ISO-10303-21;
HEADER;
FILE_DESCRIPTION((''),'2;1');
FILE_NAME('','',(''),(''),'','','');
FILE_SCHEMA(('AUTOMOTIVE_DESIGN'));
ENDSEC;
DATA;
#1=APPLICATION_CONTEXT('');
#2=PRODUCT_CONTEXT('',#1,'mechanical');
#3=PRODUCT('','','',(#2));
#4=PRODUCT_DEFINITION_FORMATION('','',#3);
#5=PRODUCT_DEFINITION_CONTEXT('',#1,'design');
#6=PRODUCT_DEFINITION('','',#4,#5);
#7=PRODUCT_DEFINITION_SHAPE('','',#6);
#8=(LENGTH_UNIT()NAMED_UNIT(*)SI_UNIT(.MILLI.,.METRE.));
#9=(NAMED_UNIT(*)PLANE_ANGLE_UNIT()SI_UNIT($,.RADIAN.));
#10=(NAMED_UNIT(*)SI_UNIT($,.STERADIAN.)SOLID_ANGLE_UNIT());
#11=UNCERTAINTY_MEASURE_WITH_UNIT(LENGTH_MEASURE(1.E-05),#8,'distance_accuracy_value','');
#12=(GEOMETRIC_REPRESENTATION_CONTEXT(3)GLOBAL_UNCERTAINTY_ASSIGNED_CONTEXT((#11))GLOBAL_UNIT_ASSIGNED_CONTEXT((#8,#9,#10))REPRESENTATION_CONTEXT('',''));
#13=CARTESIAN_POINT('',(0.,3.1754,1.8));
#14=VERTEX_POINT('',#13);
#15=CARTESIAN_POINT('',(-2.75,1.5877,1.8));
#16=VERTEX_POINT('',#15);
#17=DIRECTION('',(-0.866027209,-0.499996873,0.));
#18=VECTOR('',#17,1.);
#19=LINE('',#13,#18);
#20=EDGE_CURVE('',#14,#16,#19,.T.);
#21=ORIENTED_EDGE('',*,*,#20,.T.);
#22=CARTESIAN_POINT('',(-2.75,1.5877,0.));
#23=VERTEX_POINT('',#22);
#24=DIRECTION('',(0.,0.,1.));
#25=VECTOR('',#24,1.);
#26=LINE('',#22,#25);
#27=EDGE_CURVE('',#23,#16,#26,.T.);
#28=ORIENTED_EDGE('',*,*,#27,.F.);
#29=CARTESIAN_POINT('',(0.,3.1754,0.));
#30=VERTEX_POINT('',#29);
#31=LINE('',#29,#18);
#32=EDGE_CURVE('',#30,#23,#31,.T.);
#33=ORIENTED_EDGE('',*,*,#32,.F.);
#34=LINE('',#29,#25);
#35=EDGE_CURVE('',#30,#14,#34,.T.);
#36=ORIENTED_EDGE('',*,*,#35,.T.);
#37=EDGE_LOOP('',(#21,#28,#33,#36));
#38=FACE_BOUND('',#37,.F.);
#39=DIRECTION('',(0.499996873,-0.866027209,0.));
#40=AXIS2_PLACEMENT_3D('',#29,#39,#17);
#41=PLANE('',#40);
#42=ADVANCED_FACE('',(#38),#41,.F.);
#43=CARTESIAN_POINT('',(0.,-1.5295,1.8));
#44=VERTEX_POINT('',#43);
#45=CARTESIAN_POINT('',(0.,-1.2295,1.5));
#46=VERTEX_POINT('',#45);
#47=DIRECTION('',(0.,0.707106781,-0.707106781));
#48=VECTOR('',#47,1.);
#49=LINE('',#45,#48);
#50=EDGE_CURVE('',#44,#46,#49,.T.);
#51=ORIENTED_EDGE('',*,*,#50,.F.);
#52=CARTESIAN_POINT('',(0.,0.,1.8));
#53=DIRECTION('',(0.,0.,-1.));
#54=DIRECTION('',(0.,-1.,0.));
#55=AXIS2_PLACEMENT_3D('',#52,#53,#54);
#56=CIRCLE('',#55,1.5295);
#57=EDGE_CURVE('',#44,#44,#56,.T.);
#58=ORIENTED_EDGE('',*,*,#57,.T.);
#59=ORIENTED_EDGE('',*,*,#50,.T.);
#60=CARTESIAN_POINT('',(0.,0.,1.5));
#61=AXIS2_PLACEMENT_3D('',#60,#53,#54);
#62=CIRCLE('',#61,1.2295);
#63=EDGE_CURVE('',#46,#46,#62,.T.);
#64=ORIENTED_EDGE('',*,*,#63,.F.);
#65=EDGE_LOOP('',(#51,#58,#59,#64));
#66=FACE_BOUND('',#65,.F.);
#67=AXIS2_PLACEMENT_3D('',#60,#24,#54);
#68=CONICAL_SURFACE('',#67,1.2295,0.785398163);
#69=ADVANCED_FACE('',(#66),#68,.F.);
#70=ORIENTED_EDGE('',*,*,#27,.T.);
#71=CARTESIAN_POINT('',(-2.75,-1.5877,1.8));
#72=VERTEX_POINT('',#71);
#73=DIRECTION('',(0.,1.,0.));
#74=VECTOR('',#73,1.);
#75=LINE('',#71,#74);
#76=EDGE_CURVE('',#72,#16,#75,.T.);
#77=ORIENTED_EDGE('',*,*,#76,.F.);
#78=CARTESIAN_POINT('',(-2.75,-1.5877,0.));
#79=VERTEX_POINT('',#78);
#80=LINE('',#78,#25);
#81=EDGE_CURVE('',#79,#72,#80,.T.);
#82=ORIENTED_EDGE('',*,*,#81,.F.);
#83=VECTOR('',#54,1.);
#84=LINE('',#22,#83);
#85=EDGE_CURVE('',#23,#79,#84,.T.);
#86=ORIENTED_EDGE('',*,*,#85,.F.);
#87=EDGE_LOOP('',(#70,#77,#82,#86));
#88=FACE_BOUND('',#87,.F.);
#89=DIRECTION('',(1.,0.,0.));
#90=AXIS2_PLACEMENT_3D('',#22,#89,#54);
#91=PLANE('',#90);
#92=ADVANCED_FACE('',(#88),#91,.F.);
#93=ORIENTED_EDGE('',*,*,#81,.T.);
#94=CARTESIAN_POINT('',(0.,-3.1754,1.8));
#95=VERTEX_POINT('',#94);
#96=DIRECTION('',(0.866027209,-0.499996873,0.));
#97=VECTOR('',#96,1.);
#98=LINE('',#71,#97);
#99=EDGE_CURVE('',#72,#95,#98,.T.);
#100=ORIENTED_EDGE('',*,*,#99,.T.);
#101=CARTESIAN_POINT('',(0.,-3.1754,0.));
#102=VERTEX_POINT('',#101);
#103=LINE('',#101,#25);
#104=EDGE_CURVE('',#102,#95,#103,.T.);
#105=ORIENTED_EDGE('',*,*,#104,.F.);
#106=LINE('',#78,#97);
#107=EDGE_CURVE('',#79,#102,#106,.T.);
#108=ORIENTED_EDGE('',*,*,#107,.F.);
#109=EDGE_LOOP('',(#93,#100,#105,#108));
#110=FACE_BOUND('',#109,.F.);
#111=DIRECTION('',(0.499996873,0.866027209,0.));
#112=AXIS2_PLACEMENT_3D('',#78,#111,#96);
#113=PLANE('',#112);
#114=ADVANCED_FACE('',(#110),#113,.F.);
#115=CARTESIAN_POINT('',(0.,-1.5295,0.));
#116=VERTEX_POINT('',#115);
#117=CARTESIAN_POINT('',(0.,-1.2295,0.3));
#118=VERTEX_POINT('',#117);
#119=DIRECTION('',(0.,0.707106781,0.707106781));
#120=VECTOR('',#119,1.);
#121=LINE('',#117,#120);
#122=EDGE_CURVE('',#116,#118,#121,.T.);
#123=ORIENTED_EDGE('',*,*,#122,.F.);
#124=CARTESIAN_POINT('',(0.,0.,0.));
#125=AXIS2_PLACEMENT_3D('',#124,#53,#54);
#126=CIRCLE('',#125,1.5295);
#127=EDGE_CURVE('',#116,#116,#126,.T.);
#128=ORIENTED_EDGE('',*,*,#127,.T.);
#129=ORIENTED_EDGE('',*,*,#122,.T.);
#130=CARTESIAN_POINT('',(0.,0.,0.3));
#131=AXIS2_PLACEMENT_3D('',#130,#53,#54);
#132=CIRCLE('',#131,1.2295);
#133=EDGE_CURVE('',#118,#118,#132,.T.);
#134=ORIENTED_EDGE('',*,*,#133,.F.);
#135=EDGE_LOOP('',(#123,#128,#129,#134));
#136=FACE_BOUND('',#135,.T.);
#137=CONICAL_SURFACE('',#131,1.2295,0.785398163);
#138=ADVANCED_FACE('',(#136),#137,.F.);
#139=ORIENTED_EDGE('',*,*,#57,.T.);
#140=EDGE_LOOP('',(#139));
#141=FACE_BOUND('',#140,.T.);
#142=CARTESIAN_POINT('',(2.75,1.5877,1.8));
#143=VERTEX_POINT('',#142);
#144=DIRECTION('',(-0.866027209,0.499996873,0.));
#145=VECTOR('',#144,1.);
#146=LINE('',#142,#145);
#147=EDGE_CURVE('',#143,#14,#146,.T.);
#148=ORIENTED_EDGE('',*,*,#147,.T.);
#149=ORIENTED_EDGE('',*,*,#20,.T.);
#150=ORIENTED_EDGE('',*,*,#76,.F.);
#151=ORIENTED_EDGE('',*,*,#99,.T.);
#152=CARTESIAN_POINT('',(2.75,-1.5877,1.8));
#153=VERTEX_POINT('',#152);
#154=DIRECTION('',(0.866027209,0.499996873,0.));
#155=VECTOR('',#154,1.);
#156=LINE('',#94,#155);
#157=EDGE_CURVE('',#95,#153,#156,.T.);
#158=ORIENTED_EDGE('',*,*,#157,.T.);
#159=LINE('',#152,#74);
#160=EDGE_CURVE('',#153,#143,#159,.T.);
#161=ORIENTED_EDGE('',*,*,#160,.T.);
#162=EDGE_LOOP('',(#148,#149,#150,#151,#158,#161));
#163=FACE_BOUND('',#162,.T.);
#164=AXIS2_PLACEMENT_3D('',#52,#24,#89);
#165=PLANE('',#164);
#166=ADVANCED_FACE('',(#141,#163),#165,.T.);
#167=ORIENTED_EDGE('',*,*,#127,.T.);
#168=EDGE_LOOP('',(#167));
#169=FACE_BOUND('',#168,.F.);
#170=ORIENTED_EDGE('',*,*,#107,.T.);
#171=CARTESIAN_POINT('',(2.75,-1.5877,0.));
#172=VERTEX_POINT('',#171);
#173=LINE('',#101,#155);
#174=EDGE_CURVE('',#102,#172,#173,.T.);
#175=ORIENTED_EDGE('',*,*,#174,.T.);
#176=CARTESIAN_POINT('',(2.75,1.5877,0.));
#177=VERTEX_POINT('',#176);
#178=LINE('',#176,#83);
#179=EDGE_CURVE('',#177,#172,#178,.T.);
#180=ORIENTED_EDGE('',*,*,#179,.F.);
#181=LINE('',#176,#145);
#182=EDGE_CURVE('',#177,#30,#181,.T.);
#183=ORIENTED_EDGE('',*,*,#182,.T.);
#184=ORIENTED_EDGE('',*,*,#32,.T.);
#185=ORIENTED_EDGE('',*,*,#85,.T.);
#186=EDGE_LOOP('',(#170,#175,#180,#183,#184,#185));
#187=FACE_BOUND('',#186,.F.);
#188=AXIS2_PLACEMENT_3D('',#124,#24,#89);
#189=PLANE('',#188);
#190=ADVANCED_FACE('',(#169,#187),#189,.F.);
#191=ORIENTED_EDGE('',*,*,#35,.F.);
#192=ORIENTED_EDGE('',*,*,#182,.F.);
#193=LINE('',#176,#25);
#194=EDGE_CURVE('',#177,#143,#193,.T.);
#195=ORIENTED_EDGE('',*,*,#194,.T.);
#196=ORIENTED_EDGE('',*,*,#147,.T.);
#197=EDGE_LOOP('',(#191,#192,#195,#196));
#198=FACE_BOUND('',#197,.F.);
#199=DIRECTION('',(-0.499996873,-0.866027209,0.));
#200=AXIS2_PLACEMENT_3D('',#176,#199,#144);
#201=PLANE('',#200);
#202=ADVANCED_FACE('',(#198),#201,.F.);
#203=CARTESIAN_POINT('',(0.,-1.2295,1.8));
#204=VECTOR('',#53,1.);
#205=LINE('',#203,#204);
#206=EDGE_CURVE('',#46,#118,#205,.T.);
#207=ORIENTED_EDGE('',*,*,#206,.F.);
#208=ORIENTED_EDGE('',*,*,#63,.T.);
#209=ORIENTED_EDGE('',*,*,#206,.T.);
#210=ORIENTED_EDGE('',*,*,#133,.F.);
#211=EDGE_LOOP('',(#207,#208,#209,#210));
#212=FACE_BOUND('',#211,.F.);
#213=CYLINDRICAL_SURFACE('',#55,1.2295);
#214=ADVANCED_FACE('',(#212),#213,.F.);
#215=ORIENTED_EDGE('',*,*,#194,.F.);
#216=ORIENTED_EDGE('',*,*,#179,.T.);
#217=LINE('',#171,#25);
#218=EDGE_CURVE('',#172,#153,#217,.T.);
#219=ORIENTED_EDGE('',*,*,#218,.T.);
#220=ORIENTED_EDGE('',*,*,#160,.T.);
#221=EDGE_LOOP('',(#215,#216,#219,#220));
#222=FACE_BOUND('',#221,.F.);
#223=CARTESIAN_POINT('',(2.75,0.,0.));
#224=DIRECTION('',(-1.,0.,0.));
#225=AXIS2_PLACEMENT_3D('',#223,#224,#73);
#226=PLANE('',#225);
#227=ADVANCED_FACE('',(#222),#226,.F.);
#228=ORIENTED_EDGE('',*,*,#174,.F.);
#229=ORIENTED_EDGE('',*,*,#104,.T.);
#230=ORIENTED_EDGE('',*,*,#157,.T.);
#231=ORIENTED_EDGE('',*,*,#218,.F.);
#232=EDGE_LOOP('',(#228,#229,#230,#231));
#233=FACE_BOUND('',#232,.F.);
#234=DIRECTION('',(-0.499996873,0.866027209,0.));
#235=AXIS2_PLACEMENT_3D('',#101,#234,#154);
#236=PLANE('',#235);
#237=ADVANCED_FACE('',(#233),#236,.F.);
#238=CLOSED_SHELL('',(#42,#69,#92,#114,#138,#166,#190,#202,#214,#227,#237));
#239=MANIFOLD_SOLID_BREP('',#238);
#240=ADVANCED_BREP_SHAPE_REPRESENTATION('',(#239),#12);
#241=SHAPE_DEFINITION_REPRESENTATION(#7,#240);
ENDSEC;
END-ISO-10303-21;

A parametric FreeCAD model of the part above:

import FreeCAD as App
import Part
import Sketcher

V = App.Vector
Q = App.Units.Quantity


def edges_at(feature, points):
    """Names of the edges that pass closest to the given points."""
    edges = feature.Shape.Edges
    near = lambda p: min(range(len(edges)), key=lambda i: edges[i].distToShape(Part.Vertex(*p))[0])
    return sorted({f"Edge{near(p) + 1}" for p in points})


def add_polygon(sketch, points):
    """Adds a closed chain of lines whose ends are joined by coincident constraints."""
    first, n = sketch.GeometryCount, len(points)
    for a, b in zip(points, points[1:] + points[:1]):
        sketch.addGeometry(Part.LineSegment(App.Vector(*a, 0), App.Vector(*b, 0)), False)
    for i in range(n):
        sketch.addConstraint(Sketcher.Constraint("Coincident", first + i, 2, first + (i + 1) % n, 1))

doc = App.newDocument("Part")
params = doc.addObject("Spreadsheet::Sheet", "Params")
for row, (alias, value) in enumerate([
    ("pad1_length", "1.8 mm"),
    ("hole_diameter", "2.459 mm"),
    ("chamfer_size", "0.3 mm"),
], start=1):
    params.set(f"A{row}", alias)
    params.set(f"B{row}", "=" + value)
    params.setAlias(f"B{row}", alias)

body = doc.addObject("PartDesign::Body", "Body")

sketch1 = body.newObject("Sketcher::SketchObject", "Sketch")
sketch1.AttachmentSupport = (doc.getObject("XY_Plane"), [""])
sketch1.MapMode = "FlatFace"
add_polygon(sketch1, [(0, 3.2), (-2.8, 1.6), (-2.8, -1.6), (0, -3.2), (2.8, -1.6), (2.8, 1.6)])
sketch1.addConstraint([
    Sketcher.Constraint("Vertical", 1),
    Sketcher.Constraint("Vertical", 4),
    Sketcher.Constraint("Symmetric", 0, 2, 3, 2, -1, 1),
    Sketcher.Constraint("Symmetric", 2, 2, 5, 2, -1, 1),
    Sketcher.Constraint("PointOnObject", 2, 2, -2),
    Sketcher.Constraint("Parallel", 2, 5),
    Sketcher.Constraint("Horizontal", 1, 2, 3, 2),
    Sketcher.Constraint("DistanceX", 1, 2, 3, 2, Q("5.5 mm")),
    Sketcher.Constraint("Angle", 0, Q("-150.0002 deg")),
    Sketcher.Constraint("DistanceY", 1, 2, 1, 1, Q("3.1754 mm")),
])
pad1 = body.newObject("PartDesign::Pad", "Pad")
pad1.Profile = sketch1
pad1.setExpression("Length", "Params.pad1_length")

sketch2 = body.newObject("Sketcher::SketchObject", "Sketch001")
sketch2.AttachmentSupport = (doc.getObject("XY_Plane"), [""])
sketch2.MapMode = "FlatFace"
sketch2.AttachmentOffset = App.Placement(V(0, 0, 1.8), App.Rotation())
sketch2.addGeometry(Part.Circle(V(0, 0, 0), V(0, 0, 1), 1.2), False)
sketch2.addConstraint([
    Sketcher.Constraint("Coincident", 0, 3, -1, 1),
    Sketcher.Constraint("Diameter", 0, Q("2.459 mm")),
])
doc.recompute()
hole = body.newObject("PartDesign::Hole", "Hole")
hole.Profile = sketch2
hole.ThreadType = "None"
hole.setExpression("Diameter", "Params.hole_diameter")
hole.DepthType = "ThroughAll"
doc.recompute()

chamfer = body.newObject("PartDesign::Chamfer", "Chamfer")
chamfer.Base = (hole, edges_at(hole, [(0, 1.23, 1.8), (0, 1.23, 0)]))
chamfer.setExpression("Size", "Params.chamfer_size")

doc.recompute()
